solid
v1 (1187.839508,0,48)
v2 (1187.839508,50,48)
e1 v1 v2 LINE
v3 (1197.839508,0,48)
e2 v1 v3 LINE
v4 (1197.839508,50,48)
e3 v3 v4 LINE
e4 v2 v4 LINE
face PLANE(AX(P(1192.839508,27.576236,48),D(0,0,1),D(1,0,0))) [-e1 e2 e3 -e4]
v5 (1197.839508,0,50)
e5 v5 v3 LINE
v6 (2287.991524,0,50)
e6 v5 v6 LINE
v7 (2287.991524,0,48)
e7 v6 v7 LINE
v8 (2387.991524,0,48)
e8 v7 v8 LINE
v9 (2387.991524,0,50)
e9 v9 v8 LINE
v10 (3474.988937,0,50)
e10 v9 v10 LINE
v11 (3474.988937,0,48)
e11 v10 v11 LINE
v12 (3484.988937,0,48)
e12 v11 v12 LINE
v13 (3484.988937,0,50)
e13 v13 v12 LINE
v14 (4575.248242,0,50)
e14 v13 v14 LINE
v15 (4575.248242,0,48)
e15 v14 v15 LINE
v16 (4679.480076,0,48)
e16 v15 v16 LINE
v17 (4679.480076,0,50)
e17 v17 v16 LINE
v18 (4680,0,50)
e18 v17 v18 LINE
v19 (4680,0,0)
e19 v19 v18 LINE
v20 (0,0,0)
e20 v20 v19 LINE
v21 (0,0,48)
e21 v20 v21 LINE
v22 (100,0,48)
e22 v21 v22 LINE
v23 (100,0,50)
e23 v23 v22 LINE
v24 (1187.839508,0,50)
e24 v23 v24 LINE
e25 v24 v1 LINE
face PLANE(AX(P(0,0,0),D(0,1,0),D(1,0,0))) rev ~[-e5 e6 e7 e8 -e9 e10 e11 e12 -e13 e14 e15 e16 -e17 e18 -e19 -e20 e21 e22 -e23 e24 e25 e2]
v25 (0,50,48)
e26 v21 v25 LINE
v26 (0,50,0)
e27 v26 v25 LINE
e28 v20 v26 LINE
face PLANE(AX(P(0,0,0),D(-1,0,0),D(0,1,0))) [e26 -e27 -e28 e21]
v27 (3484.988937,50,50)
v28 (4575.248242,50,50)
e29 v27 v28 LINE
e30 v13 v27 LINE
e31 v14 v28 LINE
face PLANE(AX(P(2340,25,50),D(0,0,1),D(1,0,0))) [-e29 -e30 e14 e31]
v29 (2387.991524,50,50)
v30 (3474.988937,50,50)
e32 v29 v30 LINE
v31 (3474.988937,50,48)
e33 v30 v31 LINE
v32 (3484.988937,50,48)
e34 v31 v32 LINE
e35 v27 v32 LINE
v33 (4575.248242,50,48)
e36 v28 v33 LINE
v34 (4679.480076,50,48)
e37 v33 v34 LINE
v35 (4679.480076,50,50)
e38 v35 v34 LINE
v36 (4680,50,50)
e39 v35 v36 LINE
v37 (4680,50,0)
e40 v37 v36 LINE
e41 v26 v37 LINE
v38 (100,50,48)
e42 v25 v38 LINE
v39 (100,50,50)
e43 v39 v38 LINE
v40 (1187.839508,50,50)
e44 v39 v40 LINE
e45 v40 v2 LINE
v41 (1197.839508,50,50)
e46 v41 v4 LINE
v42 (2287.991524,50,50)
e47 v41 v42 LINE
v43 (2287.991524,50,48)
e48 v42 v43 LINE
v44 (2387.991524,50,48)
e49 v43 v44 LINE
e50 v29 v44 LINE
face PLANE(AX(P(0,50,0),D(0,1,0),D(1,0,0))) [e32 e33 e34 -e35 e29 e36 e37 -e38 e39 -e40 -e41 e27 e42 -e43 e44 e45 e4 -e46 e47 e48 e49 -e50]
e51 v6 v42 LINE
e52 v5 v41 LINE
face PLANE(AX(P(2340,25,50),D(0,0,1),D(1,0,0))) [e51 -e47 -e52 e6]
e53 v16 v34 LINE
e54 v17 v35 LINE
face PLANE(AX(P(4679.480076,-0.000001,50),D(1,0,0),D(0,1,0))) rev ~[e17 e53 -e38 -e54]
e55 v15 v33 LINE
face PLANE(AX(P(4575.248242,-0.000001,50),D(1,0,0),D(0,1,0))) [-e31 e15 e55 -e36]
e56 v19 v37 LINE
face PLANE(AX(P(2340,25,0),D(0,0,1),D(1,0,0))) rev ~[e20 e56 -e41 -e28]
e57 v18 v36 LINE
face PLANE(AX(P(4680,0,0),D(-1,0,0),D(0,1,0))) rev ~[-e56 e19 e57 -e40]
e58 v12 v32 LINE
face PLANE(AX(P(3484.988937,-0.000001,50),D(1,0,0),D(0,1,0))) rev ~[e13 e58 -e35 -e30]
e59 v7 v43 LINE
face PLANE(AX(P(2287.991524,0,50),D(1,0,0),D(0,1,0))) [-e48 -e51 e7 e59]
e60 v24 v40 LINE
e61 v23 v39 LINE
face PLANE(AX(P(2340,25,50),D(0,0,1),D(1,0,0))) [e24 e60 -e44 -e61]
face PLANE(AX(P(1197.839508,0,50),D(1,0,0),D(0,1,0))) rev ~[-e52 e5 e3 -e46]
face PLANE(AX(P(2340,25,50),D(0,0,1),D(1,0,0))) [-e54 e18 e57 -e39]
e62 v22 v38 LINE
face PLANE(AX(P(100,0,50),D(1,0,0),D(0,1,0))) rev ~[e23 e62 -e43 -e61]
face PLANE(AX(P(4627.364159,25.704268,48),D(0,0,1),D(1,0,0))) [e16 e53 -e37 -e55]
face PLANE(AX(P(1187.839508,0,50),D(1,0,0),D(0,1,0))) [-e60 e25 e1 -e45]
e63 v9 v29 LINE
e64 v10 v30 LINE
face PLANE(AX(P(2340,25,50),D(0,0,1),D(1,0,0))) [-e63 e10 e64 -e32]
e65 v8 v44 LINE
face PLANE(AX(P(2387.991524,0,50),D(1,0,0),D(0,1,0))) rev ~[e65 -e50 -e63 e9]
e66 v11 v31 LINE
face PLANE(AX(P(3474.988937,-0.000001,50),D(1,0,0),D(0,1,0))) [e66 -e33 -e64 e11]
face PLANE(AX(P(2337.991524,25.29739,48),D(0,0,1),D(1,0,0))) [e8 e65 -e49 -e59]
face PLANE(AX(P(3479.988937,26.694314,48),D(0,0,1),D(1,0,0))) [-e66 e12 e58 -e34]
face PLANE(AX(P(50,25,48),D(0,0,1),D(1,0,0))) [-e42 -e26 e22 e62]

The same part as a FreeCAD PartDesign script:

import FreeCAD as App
import Part
import Sketcher


def add_polygon(sketch, points):
    """Adds a closed chain of lines whose ends are joined by coincident constraints."""
    first, n = sketch.GeometryCount, len(points)
    for a, b in zip(points, points[1:] + points[:1]):
        sketch.addGeometry(Part.LineSegment(App.Vector(*a, 0), App.Vector(*b, 0)), False)
    for i in range(n):
        sketch.addConstraint(Sketcher.Constraint("Coincident", first + i, 2, first + (i + 1) % n, 1))

doc = App.newDocument("Part")
body = doc.addObject("PartDesign::Body", "Body")

# Sketch on XY plane
sketch1 = body.newObject("Sketcher::SketchObject", "Sketch")
sketch1.AttachmentSupport = (doc.getObject("XY_Plane"), [""])
sketch1.MapMode = "FlatFace"
add_polygon(sketch1, [(0, 50), (0, 0), (4680, 0), (4680, 50)])  # lines 0-3
sketch1.addConstraint(Sketcher.Constraint("Vertical", 0))
sketch1.addConstraint(Sketcher.Constraint("Horizontal", 1))
sketch1.addConstraint(Sketcher.Constraint("Vertical", 2))
sketch1.addConstraint(Sketcher.Constraint("Horizontal", 3))
sketch1.addConstraint(Sketcher.Constraint("Coincident", 0, 2, -1, 1))
sketch1.addConstraint(Sketcher.Constraint("DistanceX", 1, 1, 1, 2, 4680.0))
sketch1.addConstraint(Sketcher.Constraint("DistanceY", 0, 2, 0, 1, 50.0))
pad1 = body.newObject("PartDesign::Pad", "Pad")
pad1.Profile = sketch1
pad1.Length = 50

# Sketch on XY plane
sketch2 = body.newObject("Sketcher::SketchObject", "Sketch001")
sketch2.AttachmentSupport = (doc.getObject("XY_Plane"), [""])
sketch2.MapMode = "FlatFace"
sketch2.AttachmentOffset = App.Placement(App.Vector(0, 0, 50), App.Rotation())
add_polygon(sketch2, [(0, 50), (0, 0), (100, 0), (100, 50)])  # lines 0-3
sketch2.addConstraint(Sketcher.Constraint("Vertical", 0))
sketch2.addConstraint(Sketcher.Constraint("Horizontal", 1))
sketch2.addConstraint(Sketcher.Constraint("Vertical", 2))
sketch2.addConstraint(Sketcher.Constraint("Horizontal", 3))
sketch2.addConstraint(Sketcher.Constraint("Coincident", 0, 2, -1, 1))
sketch2.addConstraint(Sketcher.Constraint("DistanceX", 1, 1, 1, 2, 100.0))
sketch2.addConstraint(Sketcher.Constraint("DistanceY", 0, 2, 0, 1, 50.0))
pocket1 = body.newObject("PartDesign::Pocket", "Pocket")
pocket1.Profile = sketch2
pocket1.Length = 2

# Sketch on XY plane
sketch3 = body.newObject("Sketcher::SketchObject", "Sketch002")
sketch3.AttachmentSupport = (doc.getObject("XY_Plane"), [""])
sketch3.MapMode = "FlatFace"
sketch3.AttachmentOffset = App.Placement(App.Vector(0, 0, 50), App.Rotation())
add_polygon(sketch3, [(1188, 55), (1188, 0), (1198, 0), (1198, 55)])  # lines 0-3
sketch3.addConstraint(Sketcher.Constraint("Vertical", 0))
sketch3.addConstraint(Sketcher.Constraint("Horizontal", 1))
sketch3.addConstraint(Sketcher.Constraint("Vertical", 2))
sketch3.addConstraint(Sketcher.Constraint("Horizontal", 3))
sketch3.addConstraint(Sketcher.Constraint("PointOnObject", 0, 2, -1))
sketch3.addConstraint(Sketcher.Constraint("DistanceX", 1, 1, 1, 2, 10.0))
sketch3.addConstraint(Sketcher.Constraint("DistanceY", 0, 2, 0, 1, 55.152472))
sketch3.addConstraint(Sketcher.Constraint("DistanceX", -1, 1, 0, 2, 1187.839508))
pocket2 = body.newObject("PartDesign::Pocket", "Pocket001")
pocket2.Profile = sketch3
pocket2.Length = 2

# Sketch on XY plane
sketch4 = body.newObject("Sketcher::SketchObject", "Sketch003")
sketch4.AttachmentSupport = (doc.getObject("XY_Plane"), [""])
sketch4.MapMode = "FlatFace"
sketch4.AttachmentOffset = App.Placement(App.Vector(0, 0, 50), App.Rotation())
add_polygon(sketch4, [(2288, 51), (2288, 0), (2388, 0), (2388, 51)])  # lines 0-3
sketch4.addConstraint(Sketcher.Constraint("Vertical", 0))
sketch4.addConstraint(Sketcher.Constraint("Horizontal", 1))
sketch4.addConstraint(Sketcher.Constraint("Vertical", 2))
sketch4.addConstraint(Sketcher.Constraint("Horizontal", 3))
sketch4.addConstraint(Sketcher.Constraint("PointOnObject", 0, 2, -1))
sketch4.addConstraint(Sketcher.Constraint("DistanceX", 1, 1, 1, 2, 100.0))
sketch4.addConstraint(Sketcher.Constraint("DistanceY", 0, 2, 0, 1, 50.594781))
sketch4.addConstraint(Sketcher.Constraint("DistanceX", -1, 1, 0, 2, 2287.991524))
pocket3 = body.newObject("PartDesign::Pocket", "Pocket002")
pocket3.Profile = sketch4
pocket3.Length = 2

# Sketch on XY plane
sketch5 = body.newObject("Sketcher::SketchObject", "Sketch004")
sketch5.AttachmentSupport = (doc.getObject("XY_Plane"), [""])
sketch5.MapMode = "FlatFace"
sketch5.AttachmentOffset = App.Placement(App.Vector(0, 0, 50), App.Rotation())
add_polygon(sketch5, [(3475, 53), (3475, 0), (3485, 0), (3485, 53)])  # lines 0-3
sketch5.addConstraint(Sketcher.Constraint("Vertical", 0))
sketch5.addConstraint(Sketcher.Constraint("Horizontal", 1))
sketch5.addConstraint(Sketcher.Constraint("Vertical", 2))
sketch5.addConstraint(Sketcher.Constraint("Horizontal", 3))
sketch5.addConstraint(Sketcher.Constraint("PointOnObject", 0, 2, -1))
sketch5.addConstraint(Sketcher.Constraint("DistanceX", 1, 1, 1, 2, 10.0))
sketch5.addConstraint(Sketcher.Constraint("DistanceY", 0, 2, 0, 1, 53.388629))
sketch5.addConstraint(Sketcher.Constraint("DistanceX", -1, 1, 0, 2, 3474.988937))
pocket4 = body.newObject("PartDesign::Pocket", "Pocket003")
pocket4.Profile = sketch5
pocket4.Length = 2

# Sketch on XY plane
sketch6 = body.newObject("Sketcher::SketchObject", "Sketch005")
sketch6.AttachmentSupport = (doc.getObject("XY_Plane"), [""])
sketch6.MapMode = "FlatFace"
sketch6.AttachmentOffset = App.Placement(App.Vector(0, 0, 50), App.Rotation())
add_polygon(sketch6, [(4575, 51), (4575, 0), (4679, 0), (4679, 51)])  # lines 0-3
sketch6.addConstraint(Sketcher.Constraint("Vertical", 0))
sketch6.addConstraint(Sketcher.Constraint("Horizontal", 1))
sketch6.addConstraint(Sketcher.Constraint("Vertical", 2))
sketch6.addConstraint(Sketcher.Constraint("Horizontal", 3))
sketch6.addConstraint(Sketcher.Constraint("PointOnObject", 0, 2, -1))
sketch6.addConstraint(Sketcher.Constraint("DistanceX", 1, 1, 1, 2, 104.231835))
sketch6.addConstraint(Sketcher.Constraint("DistanceY", 0, 2, 0, 1, 51.408537))
sketch6.addConstraint(Sketcher.Constraint("DistanceX", -1, 1, 0, 2, 4575.248242))
pocket5 = body.newObject("PartDesign::Pocket", "Pocket004")
pocket5.Profile = sketch6
pocket5.Length = 2

doc.recompute()
